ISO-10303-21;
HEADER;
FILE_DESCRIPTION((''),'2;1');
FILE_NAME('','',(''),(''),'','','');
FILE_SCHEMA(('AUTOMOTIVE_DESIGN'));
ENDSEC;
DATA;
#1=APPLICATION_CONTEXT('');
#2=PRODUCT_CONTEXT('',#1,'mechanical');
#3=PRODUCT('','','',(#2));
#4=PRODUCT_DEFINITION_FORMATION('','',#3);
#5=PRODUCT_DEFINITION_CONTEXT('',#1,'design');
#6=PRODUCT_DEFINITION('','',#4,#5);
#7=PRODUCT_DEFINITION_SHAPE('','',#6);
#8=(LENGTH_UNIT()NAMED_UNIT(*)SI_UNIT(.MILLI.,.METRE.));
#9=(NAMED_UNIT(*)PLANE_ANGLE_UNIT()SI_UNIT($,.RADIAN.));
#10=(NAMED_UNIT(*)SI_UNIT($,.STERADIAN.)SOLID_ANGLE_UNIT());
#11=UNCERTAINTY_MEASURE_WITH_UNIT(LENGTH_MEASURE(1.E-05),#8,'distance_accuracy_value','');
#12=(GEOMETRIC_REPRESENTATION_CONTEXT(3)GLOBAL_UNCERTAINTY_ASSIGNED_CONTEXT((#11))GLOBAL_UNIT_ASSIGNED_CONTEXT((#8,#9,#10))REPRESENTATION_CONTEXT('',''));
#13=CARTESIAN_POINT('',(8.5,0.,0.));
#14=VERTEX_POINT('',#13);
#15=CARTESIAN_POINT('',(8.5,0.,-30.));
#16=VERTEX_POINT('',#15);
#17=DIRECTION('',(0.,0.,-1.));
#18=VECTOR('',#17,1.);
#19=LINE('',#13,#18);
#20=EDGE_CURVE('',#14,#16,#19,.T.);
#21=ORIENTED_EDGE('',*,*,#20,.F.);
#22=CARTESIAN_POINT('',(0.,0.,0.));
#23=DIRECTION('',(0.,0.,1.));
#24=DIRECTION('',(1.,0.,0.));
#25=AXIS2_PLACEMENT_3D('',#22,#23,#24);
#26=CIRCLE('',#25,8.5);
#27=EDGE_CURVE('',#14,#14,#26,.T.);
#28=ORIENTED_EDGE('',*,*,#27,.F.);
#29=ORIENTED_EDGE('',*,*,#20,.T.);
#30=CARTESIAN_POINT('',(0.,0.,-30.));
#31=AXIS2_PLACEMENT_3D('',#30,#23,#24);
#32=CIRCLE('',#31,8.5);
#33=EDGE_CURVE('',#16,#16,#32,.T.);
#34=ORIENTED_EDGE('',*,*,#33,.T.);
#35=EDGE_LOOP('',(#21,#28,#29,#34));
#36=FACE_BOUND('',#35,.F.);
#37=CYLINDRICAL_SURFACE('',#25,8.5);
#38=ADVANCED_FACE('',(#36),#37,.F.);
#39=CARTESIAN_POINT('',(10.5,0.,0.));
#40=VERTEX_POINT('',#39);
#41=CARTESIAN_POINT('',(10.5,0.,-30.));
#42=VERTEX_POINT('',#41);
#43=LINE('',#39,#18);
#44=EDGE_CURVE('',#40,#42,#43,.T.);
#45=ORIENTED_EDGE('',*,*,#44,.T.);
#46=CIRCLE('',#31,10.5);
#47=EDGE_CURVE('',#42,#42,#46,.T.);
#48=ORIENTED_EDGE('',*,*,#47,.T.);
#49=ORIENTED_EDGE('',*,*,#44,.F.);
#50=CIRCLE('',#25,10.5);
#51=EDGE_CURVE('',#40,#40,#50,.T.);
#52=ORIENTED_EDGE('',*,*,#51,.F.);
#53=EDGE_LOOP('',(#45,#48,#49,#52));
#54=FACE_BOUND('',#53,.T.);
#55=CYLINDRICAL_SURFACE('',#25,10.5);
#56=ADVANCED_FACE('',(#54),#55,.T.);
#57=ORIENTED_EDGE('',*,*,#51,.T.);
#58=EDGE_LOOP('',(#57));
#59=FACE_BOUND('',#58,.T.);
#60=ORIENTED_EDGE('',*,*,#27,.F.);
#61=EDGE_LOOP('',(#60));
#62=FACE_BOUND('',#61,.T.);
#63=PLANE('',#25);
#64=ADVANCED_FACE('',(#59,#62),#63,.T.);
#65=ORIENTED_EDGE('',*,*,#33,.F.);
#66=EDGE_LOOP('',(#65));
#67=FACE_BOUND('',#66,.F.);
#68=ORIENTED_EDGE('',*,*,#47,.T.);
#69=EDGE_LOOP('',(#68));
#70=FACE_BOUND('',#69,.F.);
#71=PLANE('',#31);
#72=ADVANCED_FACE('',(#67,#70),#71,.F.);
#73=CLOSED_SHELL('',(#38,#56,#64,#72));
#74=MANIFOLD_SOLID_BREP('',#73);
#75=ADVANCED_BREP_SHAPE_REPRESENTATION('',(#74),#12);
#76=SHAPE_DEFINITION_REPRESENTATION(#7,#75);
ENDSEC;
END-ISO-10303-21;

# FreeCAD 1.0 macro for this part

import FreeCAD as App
import Part
import Sketcher
Q = App.Units.Quantity

doc = App.newDocument("Part")
body = doc.addObject("PartDesign::Body", "Body")

# Sketch on XY plane
sketch1 = body.newObject("Sketcher::SketchObject", "Sketch")
sketch1.AttachmentSupport = (doc.getObject("XY_Plane"), [""])
sketch1.MapMode = "FlatFace"
sketch1.addGeometry([
    Part.Circle(App.Vector(0, 0, 0), App.Vector(0, 0, 1), 10.5),
    Part.Circle(App.Vector(0, 0, 0), App.Vector(0, 0, 1), 8.5),
], False)
sketch1.addConstraint([
    Sketcher.Constraint("Coincident", 0, 3, -1, 1),
    Sketcher.Constraint("Coincident", 1, 3, -1, 1),
    Sketcher.Constraint("Diameter", 0, Q("21 mm")),
    Sketcher.Constraint("Diameter", 1, Q("17 mm")),
])
pad1 = body.newObject("PartDesign::Pad", "Pad")
pad1.Profile = sketch1
pad1.Length = 30
pad1.Reversed = True

doc.recompute()
